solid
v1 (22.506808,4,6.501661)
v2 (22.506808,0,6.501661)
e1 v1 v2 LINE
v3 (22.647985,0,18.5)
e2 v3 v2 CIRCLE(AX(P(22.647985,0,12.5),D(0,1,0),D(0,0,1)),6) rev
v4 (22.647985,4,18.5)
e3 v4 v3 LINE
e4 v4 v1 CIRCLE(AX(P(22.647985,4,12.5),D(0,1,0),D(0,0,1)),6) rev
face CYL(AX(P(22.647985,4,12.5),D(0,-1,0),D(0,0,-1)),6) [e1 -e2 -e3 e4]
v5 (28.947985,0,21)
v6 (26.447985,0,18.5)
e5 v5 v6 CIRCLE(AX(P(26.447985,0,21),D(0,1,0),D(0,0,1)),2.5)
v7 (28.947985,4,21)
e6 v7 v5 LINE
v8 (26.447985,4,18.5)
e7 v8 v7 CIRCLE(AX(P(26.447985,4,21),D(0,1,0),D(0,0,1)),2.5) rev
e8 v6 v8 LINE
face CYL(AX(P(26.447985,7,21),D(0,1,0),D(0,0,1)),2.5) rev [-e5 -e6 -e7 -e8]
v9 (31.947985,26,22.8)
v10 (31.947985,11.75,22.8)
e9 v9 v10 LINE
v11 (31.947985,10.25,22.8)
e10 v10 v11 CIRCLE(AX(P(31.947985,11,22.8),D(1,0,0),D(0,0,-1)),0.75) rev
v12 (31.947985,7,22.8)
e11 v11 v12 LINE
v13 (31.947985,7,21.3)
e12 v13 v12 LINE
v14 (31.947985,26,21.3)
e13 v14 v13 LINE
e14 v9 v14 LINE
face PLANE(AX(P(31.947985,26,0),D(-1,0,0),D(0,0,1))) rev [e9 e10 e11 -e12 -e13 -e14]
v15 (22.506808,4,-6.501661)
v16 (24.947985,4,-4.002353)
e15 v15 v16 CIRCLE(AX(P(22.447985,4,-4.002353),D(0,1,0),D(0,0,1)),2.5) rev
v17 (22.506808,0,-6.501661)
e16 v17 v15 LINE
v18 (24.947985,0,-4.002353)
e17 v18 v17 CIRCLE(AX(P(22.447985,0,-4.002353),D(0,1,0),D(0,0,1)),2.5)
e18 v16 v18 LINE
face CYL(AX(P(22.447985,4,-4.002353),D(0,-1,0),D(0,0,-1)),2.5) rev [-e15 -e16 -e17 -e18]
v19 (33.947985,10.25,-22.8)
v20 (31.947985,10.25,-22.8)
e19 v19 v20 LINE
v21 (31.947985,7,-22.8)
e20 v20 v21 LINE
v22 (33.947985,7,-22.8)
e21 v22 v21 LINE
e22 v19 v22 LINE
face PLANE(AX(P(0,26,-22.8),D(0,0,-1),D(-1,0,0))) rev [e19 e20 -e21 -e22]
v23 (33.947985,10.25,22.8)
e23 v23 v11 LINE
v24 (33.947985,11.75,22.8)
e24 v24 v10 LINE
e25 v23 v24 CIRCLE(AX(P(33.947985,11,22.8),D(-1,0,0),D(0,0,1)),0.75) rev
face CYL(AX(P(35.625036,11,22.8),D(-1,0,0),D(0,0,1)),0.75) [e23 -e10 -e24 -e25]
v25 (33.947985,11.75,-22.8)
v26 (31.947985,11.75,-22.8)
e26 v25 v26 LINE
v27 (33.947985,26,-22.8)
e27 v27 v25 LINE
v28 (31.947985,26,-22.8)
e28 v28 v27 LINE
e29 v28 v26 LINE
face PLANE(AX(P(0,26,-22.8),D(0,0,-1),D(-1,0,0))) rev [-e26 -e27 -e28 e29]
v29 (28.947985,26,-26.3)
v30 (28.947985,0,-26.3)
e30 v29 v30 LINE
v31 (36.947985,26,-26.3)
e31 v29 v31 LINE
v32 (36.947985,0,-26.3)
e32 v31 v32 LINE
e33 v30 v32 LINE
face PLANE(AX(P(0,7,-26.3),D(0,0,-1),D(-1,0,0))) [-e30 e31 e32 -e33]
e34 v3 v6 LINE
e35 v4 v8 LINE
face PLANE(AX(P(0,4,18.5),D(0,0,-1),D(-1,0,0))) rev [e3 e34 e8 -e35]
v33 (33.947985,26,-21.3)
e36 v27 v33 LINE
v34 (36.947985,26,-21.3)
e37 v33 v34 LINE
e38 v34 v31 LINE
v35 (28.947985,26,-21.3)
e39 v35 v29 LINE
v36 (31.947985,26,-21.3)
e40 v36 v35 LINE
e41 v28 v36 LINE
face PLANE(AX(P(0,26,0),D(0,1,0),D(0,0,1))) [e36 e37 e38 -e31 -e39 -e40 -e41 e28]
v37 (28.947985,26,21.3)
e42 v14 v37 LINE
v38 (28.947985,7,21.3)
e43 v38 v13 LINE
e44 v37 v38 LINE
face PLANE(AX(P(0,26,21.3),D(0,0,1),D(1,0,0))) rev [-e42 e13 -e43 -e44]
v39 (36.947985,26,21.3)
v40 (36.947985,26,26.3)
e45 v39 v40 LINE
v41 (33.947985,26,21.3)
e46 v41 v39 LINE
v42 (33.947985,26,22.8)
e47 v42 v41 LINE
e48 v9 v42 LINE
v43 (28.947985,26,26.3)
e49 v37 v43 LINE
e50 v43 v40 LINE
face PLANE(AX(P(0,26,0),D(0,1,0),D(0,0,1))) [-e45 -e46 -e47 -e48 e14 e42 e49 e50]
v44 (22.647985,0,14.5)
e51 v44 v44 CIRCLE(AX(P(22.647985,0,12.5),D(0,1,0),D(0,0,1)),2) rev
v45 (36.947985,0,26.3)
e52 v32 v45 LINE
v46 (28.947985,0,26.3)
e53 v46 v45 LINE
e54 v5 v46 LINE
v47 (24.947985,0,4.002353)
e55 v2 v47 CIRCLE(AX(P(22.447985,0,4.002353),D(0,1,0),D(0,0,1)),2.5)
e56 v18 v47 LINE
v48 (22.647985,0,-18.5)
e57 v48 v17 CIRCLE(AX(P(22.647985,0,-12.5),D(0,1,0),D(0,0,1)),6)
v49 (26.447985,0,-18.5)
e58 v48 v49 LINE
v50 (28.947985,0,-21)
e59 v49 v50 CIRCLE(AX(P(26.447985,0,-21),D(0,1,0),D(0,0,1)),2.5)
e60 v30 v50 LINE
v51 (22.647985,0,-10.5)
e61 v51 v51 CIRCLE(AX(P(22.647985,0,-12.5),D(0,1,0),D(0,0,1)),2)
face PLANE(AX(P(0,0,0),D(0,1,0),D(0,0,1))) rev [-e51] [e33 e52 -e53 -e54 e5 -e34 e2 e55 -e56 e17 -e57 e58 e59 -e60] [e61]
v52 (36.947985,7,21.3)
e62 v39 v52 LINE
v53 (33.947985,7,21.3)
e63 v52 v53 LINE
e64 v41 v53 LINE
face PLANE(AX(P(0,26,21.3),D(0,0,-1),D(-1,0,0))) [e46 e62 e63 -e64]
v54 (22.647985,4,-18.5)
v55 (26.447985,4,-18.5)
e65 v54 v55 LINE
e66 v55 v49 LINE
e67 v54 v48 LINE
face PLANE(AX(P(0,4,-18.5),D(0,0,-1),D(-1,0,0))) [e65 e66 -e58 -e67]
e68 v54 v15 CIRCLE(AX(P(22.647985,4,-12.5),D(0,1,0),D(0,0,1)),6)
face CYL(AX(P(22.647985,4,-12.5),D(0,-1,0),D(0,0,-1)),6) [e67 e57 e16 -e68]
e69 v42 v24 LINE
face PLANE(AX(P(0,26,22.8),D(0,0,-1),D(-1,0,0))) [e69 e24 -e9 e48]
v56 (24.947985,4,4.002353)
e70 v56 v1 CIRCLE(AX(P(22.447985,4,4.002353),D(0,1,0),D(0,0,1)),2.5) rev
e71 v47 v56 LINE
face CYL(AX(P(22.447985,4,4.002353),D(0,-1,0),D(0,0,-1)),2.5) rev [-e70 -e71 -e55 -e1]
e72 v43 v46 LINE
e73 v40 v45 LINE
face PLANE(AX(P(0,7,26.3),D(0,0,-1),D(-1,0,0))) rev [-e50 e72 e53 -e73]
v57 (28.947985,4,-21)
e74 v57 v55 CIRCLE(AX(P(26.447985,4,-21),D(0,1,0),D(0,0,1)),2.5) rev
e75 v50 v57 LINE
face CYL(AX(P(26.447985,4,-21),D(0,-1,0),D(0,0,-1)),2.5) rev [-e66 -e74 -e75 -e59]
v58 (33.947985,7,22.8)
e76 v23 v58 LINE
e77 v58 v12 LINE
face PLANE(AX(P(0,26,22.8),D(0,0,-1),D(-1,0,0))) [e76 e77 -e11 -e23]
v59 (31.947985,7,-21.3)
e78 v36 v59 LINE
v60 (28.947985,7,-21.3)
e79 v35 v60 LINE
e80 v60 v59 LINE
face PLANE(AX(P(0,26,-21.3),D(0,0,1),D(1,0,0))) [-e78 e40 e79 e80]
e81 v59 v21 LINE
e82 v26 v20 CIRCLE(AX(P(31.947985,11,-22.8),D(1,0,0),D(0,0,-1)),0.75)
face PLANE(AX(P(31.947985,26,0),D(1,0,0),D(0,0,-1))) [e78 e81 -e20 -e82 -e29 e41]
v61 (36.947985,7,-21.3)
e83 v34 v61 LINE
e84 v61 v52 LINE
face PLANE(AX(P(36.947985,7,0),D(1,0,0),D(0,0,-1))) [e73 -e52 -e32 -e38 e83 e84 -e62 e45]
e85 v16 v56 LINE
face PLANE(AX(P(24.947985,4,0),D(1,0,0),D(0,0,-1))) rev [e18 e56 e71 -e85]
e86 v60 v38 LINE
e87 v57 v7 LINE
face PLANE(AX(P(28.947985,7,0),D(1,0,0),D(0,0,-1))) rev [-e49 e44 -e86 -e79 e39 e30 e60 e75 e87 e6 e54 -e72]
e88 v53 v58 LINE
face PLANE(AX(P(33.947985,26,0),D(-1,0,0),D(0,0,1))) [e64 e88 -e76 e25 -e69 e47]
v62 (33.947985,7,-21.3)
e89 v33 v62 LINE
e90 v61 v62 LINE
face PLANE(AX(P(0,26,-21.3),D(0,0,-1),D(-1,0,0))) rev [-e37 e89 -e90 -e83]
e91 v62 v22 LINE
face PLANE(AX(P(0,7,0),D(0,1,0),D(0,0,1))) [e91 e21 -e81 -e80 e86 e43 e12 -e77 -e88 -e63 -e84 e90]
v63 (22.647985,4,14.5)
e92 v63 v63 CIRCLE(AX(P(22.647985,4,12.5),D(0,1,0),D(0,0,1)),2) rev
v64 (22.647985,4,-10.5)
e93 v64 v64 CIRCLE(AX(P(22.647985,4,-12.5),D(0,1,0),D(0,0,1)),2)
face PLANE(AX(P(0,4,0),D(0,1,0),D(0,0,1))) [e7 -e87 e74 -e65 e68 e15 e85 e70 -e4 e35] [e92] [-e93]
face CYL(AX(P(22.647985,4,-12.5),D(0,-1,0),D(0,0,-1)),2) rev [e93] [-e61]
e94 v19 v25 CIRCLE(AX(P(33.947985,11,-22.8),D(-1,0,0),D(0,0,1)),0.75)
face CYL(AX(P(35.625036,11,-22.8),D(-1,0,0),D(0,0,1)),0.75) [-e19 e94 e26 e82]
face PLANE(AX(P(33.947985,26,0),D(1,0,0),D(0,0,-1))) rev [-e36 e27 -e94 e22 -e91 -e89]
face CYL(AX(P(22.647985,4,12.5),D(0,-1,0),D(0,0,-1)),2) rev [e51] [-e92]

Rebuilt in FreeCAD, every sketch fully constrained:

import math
import FreeCAD as App
import Part
import Sketcher


def edges_at(feature, points):
    """Names of the edges that pass closest to the given points."""
    edges = feature.Shape.Edges
    near = lambda p: min(range(len(edges)), key=lambda i: edges[i].distToShape(Part.Vertex(*p))[0])
    return sorted({f"Edge{near(p) + 1}" for p in points})


def add_polygon(sketch, points):
    """Adds a closed chain of lines whose ends are joined by coincident constraints."""
    first, n = sketch.GeometryCount, len(points)
    for a, b in zip(points, points[1:] + points[:1]):
        sketch.addGeometry(Part.LineSegment(App.Vector(*a, 0), App.Vector(*b, 0)), False)
    for i in range(n):
        sketch.addConstraint(Sketcher.Constraint("Coincident", first + i, 2, first + (i + 1) % n, 1))

doc = App.newDocument("Part")
body = doc.addObject("PartDesign::Body", "Body")

# Sketch on XZ plane
sketch1 = body.newObject("Sketcher::SketchObject", "Sketch")
sketch1.AttachmentSupport = (doc.getObject("XZ_Plane"), [""])
sketch1.MapMode = "FlatFace"
sketch1.addGeometry([
    Part.LineSegment(App.Vector(28.9, -18.5, 0), App.Vector(22.6, -18.5, 0)),  # 0
    Part.ArcOfCircle(Part.Circle(App.Vector(22.6, -12.5, 0), App.Vector(0, 0, 1), 6), math.radians(90), math.radians(270)),  # 1
    Part.LineSegment(App.Vector(22.6, -6.5, 0), App.Vector(24.9, -6.5, 0)),  # 2
    Part.LineSegment(App.Vector(24.9, -6.5, 0), App.Vector(24.9, 6.5, 0)),  # 3
    Part.LineSegment(App.Vector(24.9, 6.5, 0), App.Vector(22.6, 6.5, 0)),  # 4
    Part.ArcOfCircle(Part.Circle(App.Vector(22.6, 12.5, 0), App.Vector(0, 0, 1), 6), math.radians(90), math.radians(270)),  # 5
    Part.LineSegment(App.Vector(22.6, 18.5, 0), App.Vector(28.9, 18.5, 0)),  # 6
    Part.LineSegment(App.Vector(28.9, 18.5, 0), App.Vector(28.9, -18.5, 0)),  # 7
    Part.Circle(App.Vector(22.6, 12.5, 0), App.Vector(0, 0, 1), 2),  # 8
    Part.Circle(App.Vector(22.6, -12.5, 0), App.Vector(0, 0, 1), 2),  # 9
], False)
sketch1.addConstraint([
    Sketcher.Constraint("Tangent", 0, 2, 1, 2),
    Sketcher.Constraint("Tangent", 1, 1, 2, 1),
    Sketcher.Constraint("Coincident", 2, 2, 3, 1),
    Sketcher.Constraint("Coincident", 3, 2, 4, 1),
    Sketcher.Constraint("Tangent", 4, 2, 5, 2),
    Sketcher.Constraint("Tangent", 5, 1, 6, 1),
    Sketcher.Constraint("Coincident", 6, 2, 7, 1),
    Sketcher.Constraint("Coincident", 7, 2, 0, 1),
    Sketcher.Constraint("Horizontal", 0),
    Sketcher.Constraint("Horizontal", 2),
    Sketcher.Constraint("Vertical", 3),
    Sketcher.Constraint("Horizontal", 4),
    Sketcher.Constraint("Horizontal", 6),
    Sketcher.Constraint("Vertical", 7),
    Sketcher.Constraint("Coincident", 8, 3, 5, 3),
    Sketcher.Constraint("Coincident", 9, 3, 1, 3),
    Sketcher.Constraint("Equal", 1, 5),
    Sketcher.Constraint("Equal", 8, 9),
    Sketcher.Constraint("Symmetric", 1, 3, 5, 3, -1),
    Sketcher.Constraint("Diameter", 8, 4.0),
    Sketcher.Constraint("Radius", 1, 6.0),
    Sketcher.Constraint("DistanceY", 3, 1, 3, 2, 13.0),
    Sketcher.Constraint("DistanceX", 0, 2, 0, 1, 6.3),
    Sketcher.Constraint("DistanceX", 2, 1, 2, 2, 2.3),
    Sketcher.Constraint("DistanceX", -1, 1, 1, 3, 22.647985),
])
pad1 = body.newObject("PartDesign::Pad", "Pad")
pad1.Profile = sketch1
pad1.Length = 4
pad1.Reversed = True

# Sketch on XZ plane
sketch2 = body.newObject("Sketcher::SketchObject", "Sketch001")
sketch2.AttachmentSupport = (doc.getObject("XZ_Plane"), [""])
sketch2.MapMode = "FlatFace"
add_polygon(sketch2, [(37, -26), (29, -26), (29, 26), (37, 26)])  # lines 0-3
sketch2.addConstraint([
    Sketcher.Constraint("Horizontal", 0),
    Sketcher.Constraint("Vertical", 1),
    Sketcher.Constraint("Horizontal", 2),
    Sketcher.Constraint("Vertical", 3),
    Sketcher.Constraint("DistanceX", 0, 2, 0, 1, 8.0),
    Sketcher.Constraint("DistanceY", 1, 1, 1, 2, 52.6),
    Sketcher.Constraint("DistanceY", 0, 2, -1, 1, 26.3),
    Sketcher.Constraint("DistanceX", -1, 1, 0, 2, 28.947985),
])
pad2 = body.newObject("PartDesign::Pad", "Pad001")
pad2.Profile = sketch2
pad2.Length = 7
pad2.Reversed = True

# Sketch on XZ plane
sketch3 = body.newObject("Sketcher::SketchObject", "Sketch002")
sketch3.AttachmentSupport = (doc.getObject("XZ_Plane"), [""])
sketch3.MapMode = "FlatFace"
sketch3.AttachmentOffset = App.Placement(App.Vector(0, 0, -4), App.Rotation())
add_polygon(sketch3, [(31.9, -21.3), (31.9, -22.8), (33.9, -22.8), (33.9, -21.3), (36.9, -21.3), (36.9, -26.3), (28.9, -26.3), (28.9, -21.3)])  # lines 0-7
add_polygon(sketch3, [(36.9, 26.3), (36.9, 21.3), (33.9, 21.3), (33.9, 22.8), (31.9, 22.8), (31.9, 21.3), (28.9, 21.3), (28.9, 26.3)])  # lines 8-15
sketch3.addConstraint([
    Sketcher.Constraint("Vertical", 0),
    Sketcher.Constraint("Horizontal", 1),
    Sketcher.Constraint("Vertical", 2),
    Sketcher.Constraint("Horizontal", 3),
    Sketcher.Constraint("Vertical", 4),
    Sketcher.Constraint("Horizontal", 5),
    Sketcher.Constraint("Vertical", 6),
    Sketcher.Constraint("Horizontal", 7),
    Sketcher.Constraint("Vertical", 8),
    Sketcher.Constraint("Horizontal", 9),
    Sketcher.Constraint("Vertical", 10),
    Sketcher.Constraint("Horizontal", 11),
    Sketcher.Constraint("Vertical", 12),
    Sketcher.Constraint("Horizontal", 13),
    Sketcher.Constraint("Vertical", 14),
    Sketcher.Constraint("Horizontal", 15),
    Sketcher.Constraint("Symmetric", 3, 2, 8, 2, -1),
    Sketcher.Constraint("Symmetric", 1, 2, 10, 2, -1),
    Sketcher.Constraint("Symmetric", 7, 2, 12, 2, -1),
    Sketcher.Constraint("Symmetric", 5, 2, 14, 2, -1),
    Sketcher.Constraint("Horizontal", 3, 2, 6, 2),
    Sketcher.Constraint("Equal", 3, 7),
    Sketcher.Constraint("DistanceX", 1, 1, 1, 2, 2.0),
    Sketcher.Constraint("DistanceX", 3, 1, 3, 2, 3.0),
    Sketcher.Constraint("DistanceY", 4, 2, 4, 1, 5.0),
    Sketcher.Constraint("DistanceY", 0, 2, 0, 1, 1.5),
    Sketcher.Constraint("DistanceY", 0, 2, -1, 1, 22.8),
    Sketcher.Constraint("DistanceX", -1, 1, 0, 2, 31.947985),
])
pad3 = body.newObject("PartDesign::Pad", "Pad002")
pad3.Profile = sketch3
pad3.Length = 22
pad3.Reversed = True

# Sketch on YZ plane
sketch4 = body.newObject("Sketcher::SketchObject", "Sketch003")
sketch4.AttachmentSupport = (doc.getObject("YZ_Plane"), [""])
sketch4.MapMode = "FlatFace"
sketch4.AttachmentOffset = App.Placement(App.Vector(0, 0, 31.947985), App.Rotation())
sketch4.addGeometry([
    Part.LineSegment(App.Vector(10.2, -22.8, 0), App.Vector(11.8, -22.8, 0)),
    Part.ArcOfCircle(Part.Circle(App.Vector(11, -22.8, 0), App.Vector(0, 0, 1), 0.8), math.radians(0), math.radians(180)),
    Part.ArcOfCircle(Part.Circle(App.Vector(11, 22.8, 0), App.Vector(0, 0, 1), 0.8), math.radians(180), math.radians(360)),
    Part.LineSegment(App.Vector(11.8, 22.8, 0), App.Vector(10.2, 22.8, 0)),
], False)
sketch4.addConstraint([
    Sketcher.Constraint("Coincident", 0, 1, 1, 2),
    Sketcher.Constraint("Coincident", 1, 1, 0, 2),
    Sketcher.Constraint("Coincident", 2, 1, 3, 2),
    Sketcher.Constraint("Coincident", 3, 1, 2, 2),
    Sketcher.Constraint("Horizontal", 0),
    Sketcher.Constraint("Horizontal", 3),
    Sketcher.Constraint("Equal", 1, 2),
    Sketcher.Constraint("Symmetric", 1, 3, 2, 3, -1),
    Sketcher.Constraint("Horizontal", 1, 3, 0, 1),
    Sketcher.Constraint("Radius", 1, 0.75),
    Sketcher.Constraint("DistanceX", -1, 1, 1, 3, 11.0),
    Sketcher.Constraint("DistanceY", 1, 3, -1, 1, 22.8),
    Sketcher.Constraint("DistanceY", -1, 1, 2, 1, 22.8),
])
pad4 = body.newObject("PartDesign::Pad", "Pad003")
pad4.Profile = sketch4
pad4.Length = 2
doc.recompute()

fillet = body.newObject("PartDesign::Fillet", "Fillet")
fillet.Base = (pad4, edges_at(pad4, [
    (28.948, 2, 18.5),
    (24.948, 2, 6.5),
    (24.948, 2, -6.5),
    (28.948, 2, -18.5),
]))
fillet.Radius = 2.5

doc.recompute()
